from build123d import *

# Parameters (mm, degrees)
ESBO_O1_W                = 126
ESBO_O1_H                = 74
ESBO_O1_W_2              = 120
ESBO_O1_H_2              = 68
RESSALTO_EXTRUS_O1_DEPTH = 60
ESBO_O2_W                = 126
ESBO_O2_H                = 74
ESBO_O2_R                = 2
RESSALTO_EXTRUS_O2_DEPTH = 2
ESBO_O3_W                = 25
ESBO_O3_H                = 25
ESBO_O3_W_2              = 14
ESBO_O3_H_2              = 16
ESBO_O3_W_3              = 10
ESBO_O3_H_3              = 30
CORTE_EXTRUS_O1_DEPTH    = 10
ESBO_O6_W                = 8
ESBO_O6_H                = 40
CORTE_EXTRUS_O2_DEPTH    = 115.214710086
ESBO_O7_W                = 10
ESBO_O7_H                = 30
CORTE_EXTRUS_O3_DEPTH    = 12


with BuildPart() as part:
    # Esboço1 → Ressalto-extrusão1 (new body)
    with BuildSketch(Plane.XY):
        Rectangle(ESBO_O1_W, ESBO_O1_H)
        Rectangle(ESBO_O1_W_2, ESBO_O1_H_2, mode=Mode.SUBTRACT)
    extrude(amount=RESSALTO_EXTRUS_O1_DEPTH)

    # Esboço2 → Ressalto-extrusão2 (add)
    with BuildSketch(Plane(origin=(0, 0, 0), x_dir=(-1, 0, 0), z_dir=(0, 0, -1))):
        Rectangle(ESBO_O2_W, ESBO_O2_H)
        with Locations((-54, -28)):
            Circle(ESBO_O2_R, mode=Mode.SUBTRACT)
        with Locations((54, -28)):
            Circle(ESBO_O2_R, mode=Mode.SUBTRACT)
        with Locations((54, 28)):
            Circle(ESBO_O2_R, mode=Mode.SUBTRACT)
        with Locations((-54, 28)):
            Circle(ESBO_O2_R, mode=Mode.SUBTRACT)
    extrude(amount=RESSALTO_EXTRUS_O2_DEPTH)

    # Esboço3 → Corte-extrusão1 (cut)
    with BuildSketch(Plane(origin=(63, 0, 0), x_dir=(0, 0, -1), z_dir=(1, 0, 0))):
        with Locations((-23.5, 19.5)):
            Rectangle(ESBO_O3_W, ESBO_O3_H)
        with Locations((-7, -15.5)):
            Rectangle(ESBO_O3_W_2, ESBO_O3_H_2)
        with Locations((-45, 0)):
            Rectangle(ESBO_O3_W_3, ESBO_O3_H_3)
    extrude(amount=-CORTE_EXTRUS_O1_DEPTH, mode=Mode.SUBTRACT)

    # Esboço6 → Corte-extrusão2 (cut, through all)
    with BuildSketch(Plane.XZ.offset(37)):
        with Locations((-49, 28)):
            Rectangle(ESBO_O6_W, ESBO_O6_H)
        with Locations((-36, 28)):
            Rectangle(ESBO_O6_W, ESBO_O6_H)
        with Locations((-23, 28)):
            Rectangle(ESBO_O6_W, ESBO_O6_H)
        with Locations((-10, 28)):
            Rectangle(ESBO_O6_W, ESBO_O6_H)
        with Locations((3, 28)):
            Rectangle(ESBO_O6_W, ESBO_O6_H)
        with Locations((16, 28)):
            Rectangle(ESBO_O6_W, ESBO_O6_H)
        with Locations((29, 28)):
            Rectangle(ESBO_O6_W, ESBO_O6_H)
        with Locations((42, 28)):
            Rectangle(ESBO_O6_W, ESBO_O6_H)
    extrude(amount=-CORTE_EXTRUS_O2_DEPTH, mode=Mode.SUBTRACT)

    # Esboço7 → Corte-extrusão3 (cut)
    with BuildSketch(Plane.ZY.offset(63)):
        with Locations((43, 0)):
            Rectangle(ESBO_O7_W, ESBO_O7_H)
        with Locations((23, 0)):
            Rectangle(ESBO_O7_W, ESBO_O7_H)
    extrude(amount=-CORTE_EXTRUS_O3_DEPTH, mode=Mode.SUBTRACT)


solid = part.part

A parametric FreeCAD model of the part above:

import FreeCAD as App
import Part
import Sketcher

doc = App.newDocument("Part")
body = doc.addObject("PartDesign::Body", "Body")

sketch1 = body.newObject("Sketcher::SketchObject", "Sketch")
sketch1.AttachmentSupport = (doc.getObject("XY_Plane"), [""])
sketch1.MapMode = "FlatFace"
sketch1.addGeometry(Part.LineSegment(App.Vector(-63, 37, 0), App.Vector(-63, -37, 0)), False)
sketch1.addGeometry(Part.LineSegment(App.Vector(-63, -37, 0), App.Vector(63, -37, 0)), False)
sketch1.addGeometry(Part.LineSegment(App.Vector(63, -37, 0), App.Vector(63, 37, 0)), False)
sketch1.addGeometry(Part.LineSegment(App.Vector(63, 37, 0), App.Vector(-63, 37, 0)), False)
sketch1.addGeometry(Part.LineSegment(App.Vector(60, -34, 0), App.Vector(-60, -34, 0)), False)
sketch1.addGeometry(Part.LineSegment(App.Vector(-60, -34, 0), App.Vector(-60, 34, 0)), False)
sketch1.addGeometry(Part.LineSegment(App.Vector(-60, 34, 0), App.Vector(60, 34, 0)), False)
sketch1.addGeometry(Part.LineSegment(App.Vector(60, 34, 0), App.Vector(60, -34, 0)), False)
sketch1.addConstraint(Sketcher.Constraint("Coincident", 0, 2, 1, 1))
sketch1.addConstraint(Sketcher.Constraint("Coincident", 1, 2, 2, 1))
sketch1.addConstraint(Sketcher.Constraint("Coincident", 2, 2, 3, 1))
sketch1.addConstraint(Sketcher.Constraint("Coincident", 3, 2, 0, 1))
sketch1.addConstraint(Sketcher.Constraint("Coincident", 4, 2, 5, 1))
sketch1.addConstraint(Sketcher.Constraint("Coincident", 5, 2, 6, 1))
sketch1.addConstraint(Sketcher.Constraint("Coincident", 6, 2, 7, 1))
sketch1.addConstraint(Sketcher.Constraint("Coincident", 7, 2, 4, 1))
sketch1.addConstraint(Sketcher.Constraint("Vertical", 0))
sketch1.addConstraint(Sketcher.Constraint("Horizontal", 1))
sketch1.addConstraint(Sketcher.Constraint("Vertical", 2))
sketch1.addConstraint(Sketcher.Constraint("Horizontal", 3))
sketch1.addConstraint(Sketcher.Constraint("Horizontal", 4))
sketch1.addConstraint(Sketcher.Constraint("Vertical", 5))
sketch1.addConstraint(Sketcher.Constraint("Horizontal", 6))
sketch1.addConstraint(Sketcher.Constraint("Vertical", 7))
sketch1.addConstraint(Sketcher.Constraint("Symmetric", 0, 2, 2, 2, -1, 1))
sketch1.addConstraint(Sketcher.Constraint("Symmetric", 4, 2, 6, 2, -1, 1))
sketch1.addConstraint(Sketcher.Constraint("DistanceX", 1, 1, 1, 2, 126.0))
sketch1.addConstraint(Sketcher.Constraint("DistanceX", 4, 2, 4, 1, 120.0))
sketch1.addConstraint(Sketcher.Constraint("DistanceY", 0, 2, 0, 1, 74.0))
sketch1.addConstraint(Sketcher.Constraint("DistanceY", 5, 1, 5, 2, 68.0))
pad1 = body.newObject("PartDesign::Pad", "Pad")
pad1.Profile = sketch1
pad1.Length = 60

sketch2 = body.newObject("Sketcher::SketchObject", "Sketch001")
sketch2.AttachmentSupport = (doc.getObject("XY_Plane"), [""])
sketch2.MapMode = "FlatFace"
sketch2.addGeometry(Part.LineSegment(App.Vector(63, 37, 0), App.Vector(63, -37, 0)), False)
sketch2.addGeometry(Part.LineSegment(App.Vector(63, -37, 0), App.Vector(-63, -37, 0)), False)
sketch2.addGeometry(Part.LineSegment(App.Vector(-63, -37, 0), App.Vector(-63, 37, 0)), False)
sketch2.addGeometry(Part.LineSegment(App.Vector(-63, 37, 0), App.Vector(63, 37, 0)), False)
sketch2.addGeometry(Part.Circle(App.Vector(54, -28, 0), App.Vector(0, 0, 1), 2), False)
sketch2.addGeometry(Part.Circle(App.Vector(-54, -28, 0), App.Vector(0, 0, 1), 2), False)
sketch2.addGeometry(Part.Circle(App.Vector(54, 28, 0), App.Vector(0, 0, 1), 2), False)
sketch2.addGeometry(Part.Circle(App.Vector(-54, 28, 0), App.Vector(0, 0, 1), 2), False)
sketch2.addConstraint(Sketcher.Constraint("Coincident", 0, 2, 1, 1))
sketch2.addConstraint(Sketcher.Constraint("Coincident", 1, 2, 2, 1))
sketch2.addConstraint(Sketcher.Constraint("Coincident", 2, 2, 3, 1))
sketch2.addConstraint(Sketcher.Constraint("Coincident", 3, 2, 0, 1))
sketch2.addConstraint(Sketcher.Constraint("Vertical", 0))
sketch2.addConstraint(Sketcher.Constraint("Horizontal", 1))
sketch2.addConstraint(Sketcher.Constraint("Vertical", 2))
sketch2.addConstraint(Sketcher.Constraint("Horizontal", 3))
sketch2.addConstraint(Sketcher.Constraint("Equal", 4, 5))
sketch2.addConstraint(Sketcher.Constraint("Equal", 5, 6))
sketch2.addConstraint(Sketcher.Constraint("Equal", 6, 7))
sketch2.addConstraint(Sketcher.Constraint("Symmetric", 5, 3, 6, 3, -1, 1))
sketch2.addConstraint(Sketcher.Constraint("Symmetric", 4, 3, 7, 3, -1, 1))
sketch2.addConstraint(Sketcher.Constraint("Symmetric", 0, 2, 2, 2, -1, 1))
sketch2.addConstraint(Sketcher.Constraint("Symmetric", 4, 3, 5, 3, -2))
sketch2.addConstraint(Sketcher.Constraint("Diameter", 4, 4.0))
sketch2.addConstraint(Sketcher.Constraint("DistanceX", 1, 2, 1, 1, 126.0))
sketch2.addConstraint(Sketcher.Constraint("DistanceY", 0, 2, 0, 1, 74.0))
sketch2.addConstraint(Sketcher.Constraint("DistanceX", -1, 1, 4, 3, 54.0))
sketch2.addConstraint(Sketcher.Constraint("DistanceY", 4, 3, -1, 1, 28.0))
pad2 = body.newObject("PartDesign::Pad", "Pad001")
pad2.Profile = sketch2
pad2.Length = 2
pad2.Reversed = True

sketch3 = body.newObject("Sketcher::SketchObject", "Sketch002")
sketch3.AttachmentSupport = (doc.getObject("YZ_Plane"), [""])
sketch3.MapMode = "FlatFace"
sketch3.AttachmentOffset = App.Placement(App.Vector(0, 0, 63), App.Rotation())
sketch3.addGeometry(Part.LineSegment(App.Vector(32, 36, 0), App.Vector(7, 36, 0)), False)
sketch3.addGeometry(Part.LineSegment(App.Vector(7, 36, 0), App.Vector(7, 11, 0)), False)
sketch3.addGeometry(Part.LineSegment(App.Vector(7, 11, 0), App.Vector(32, 11, 0)), False)
sketch3.addGeometry(Part.LineSegment(App.Vector(32, 11, 0), App.Vector(32, 36, 0)), False)
sketch3.addGeometry(Part.LineSegment(App.Vector(-7.5, 14, 0), App.Vector(-23.5, 14, 0)), False)
sketch3.addGeometry(Part.LineSegment(App.Vector(-23.5, 14, 0), App.Vector(-23.5, 0, 0)), False)
sketch3.addGeometry(Part.LineSegment(App.Vector(-23.5, 0, 0), App.Vector(-7.5, 0, 0)), False)
sketch3.addGeometry(Part.LineSegment(App.Vector(-7.5, 0, 0), App.Vector(-7.5, 14, 0)), False)
sketch3.addGeometry(Part.LineSegment(App.Vector(15, 50, 0), App.Vector(-15, 50, 0)), False)
sketch3.addGeometry(Part.LineSegment(App.Vector(-15, 50, 0), App.Vector(-15, 40, 0)), False)
sketch3.addGeometry(Part.LineSegment(App.Vector(-15, 40, 0), App.Vector(15, 40, 0)), False)
sketch3.addGeometry(Part.LineSegment(App.Vector(15, 40, 0), App.Vector(15, 50, 0)), False)
sketch3.addConstraint(Sketcher.Constraint("Coincident", 0, 2, 1, 1))
sketch3.addConstraint(Sketcher.Constraint("Coincident", 1, 2, 2, 1))
sketch3.addConstraint(Sketcher.Constraint("Coincident", 2, 2, 3, 1))
sketch3.addConstraint(Sketcher.Constraint("Coincident", 3, 2, 0, 1))
sketch3.addConstraint(Sketcher.Constraint("Coincident", 4, 2, 5, 1))
sketch3.addConstraint(Sketcher.Constraint("Coincident", 5, 2, 6, 1))
sketch3.addConstraint(Sketcher.Constraint("Coincident", 6, 2, 7, 1))
sketch3.addConstraint(Sketcher.Constraint("Coincident", 7, 2, 4, 1))
sketch3.addConstraint(Sketcher.Constraint("Coincident", 8, 2, 9, 1))
sketch3.addConstraint(Sketcher.Constraint("Coincident", 9, 2, 10, 1))
sketch3.addConstraint(Sketcher.Constraint("Coincident", 10, 2, 11, 1))
sketch3.addConstraint(Sketcher.Constraint("Coincident", 11, 2, 8, 1))
sketch3.addConstraint(Sketcher.Constraint("Horizontal", 0))
sketch3.addConstraint(Sketcher.Constraint("Vertical", 1))
sketch3.addConstraint(Sketcher.Constraint("Horizontal", 2))
sketch3.addConstraint(Sketcher.Constraint("Vertical", 3))
sketch3.addConstraint(Sketcher.Constraint("Horizontal", 4))
sketch3.addConstraint(Sketcher.Constraint("Vertical", 5))
sketch3.addConstraint(Sketcher.Constraint("Horizontal", 6))
sketch3.addConstraint(Sketcher.Constraint("Vertical", 7))
sketch3.addConstraint(Sketcher.Constraint("Horizontal", 8))
sketch3.addConstraint(Sketcher.Constraint("Vertical", 9))
sketch3.addConstraint(Sketcher.Constraint("Horizontal", 10))
sketch3.addConstraint(Sketcher.Constraint("Vertical", 11))
sketch3.addConstraint(Sketcher.Constraint("PointOnObject", 5, 2, -1))
sketch3.addConstraint(Sketcher.Constraint("Equal", 2, 1))
sketch3.addConstraint(Sketcher.Constraint("DistanceX", 0, 2, 0, 1, 25.0))
sketch3.addConstraint(Sketcher.Constraint("DistanceX", 4, 2, 4, 1, 16.0))
sketch3.addConstraint(Sketcher.Constraint("DistanceX", 8, 2, 8, 1, 30.0))
sketch3.addConstraint(Sketcher.Constraint("DistanceY", 5, 2, 5, 1, 14.0))
sketch3.addConstraint(Sketcher.Constraint("DistanceY", 9, 2, 9, 1, 10.0))
sketch3.addConstraint(Sketcher.Constraint("DistanceX", -1, 1, 0, 2, 7.0))
sketch3.addConstraint(Sketcher.Constraint("DistanceY", -1, 1, 0, 2, 36.0))
sketch3.addConstraint(Sketcher.Constraint("DistanceX", 8, 2, -1, 1, 15.0))
sketch3.addConstraint(Sketcher.Constraint("DistanceY", -1, 1, 8, 2, 50.0))
sketch3.addConstraint(Sketcher.Constraint("DistanceX", 4, 2, -1, 1, 23.5))
pocket1 = body.newObject("PartDesign::Pocket", "Pocket")
pocket1.Profile = sketch3
pocket1.Length = 10

sketch4 = body.newObject("Sketcher::SketchObject", "Sketch003")
sketch4.AttachmentSupport = (doc.getObject("XZ_Plane"), [""])
sketch4.MapMode = "FlatFace"
sketch4.AttachmentOffset = App.Placement(App.Vector(0, 0, 37), App.Rotation())
sketch4.addGeometry(Part.LineSegment(App.Vector(-53, 48, 0), App.Vector(-53, 8, 0)), False)
sketch4.addGeometry(Part.LineSegment(App.Vector(-53, 8, 0), App.Vector(-45, 8, 0)), False)
sketch4.addGeometry(Part.LineSegment(App.Vector(-45, 8, 0), App.Vector(-45, 48, 0)), False)
sketch4.addGeometry(Part.LineSegment(App.Vector(-45, 48, 0), App.Vector(-53, 48, 0)), False)
sketch4.addGeometry(Part.LineSegment(App.Vector(-40, 48, 0), App.Vector(-40, 8, 0)), False)
sketch4.addGeometry(Part.LineSegment(App.Vector(-40, 8, 0), App.Vector(-32, 8, 0)), False)
sketch4.addGeometry(Part.LineSegment(App.Vector(-32, 8, 0), App.Vector(-32, 48, 0)), False)
sketch4.addGeometry(Part.LineSegment(App.Vector(-32, 48, 0), App.Vector(-40, 48, 0)), False)
sketch4.addGeometry(Part.LineSegment(App.Vector(-27, 48, 0), App.Vector(-27, 8, 0)), False)
sketch4.addGeometry(Part.LineSegment(App.Vector(-27, 8, 0), App.Vector(-19, 8, 0)), False)
sketch4.addGeometry(Part.LineSegment(App.Vector(-19, 8, 0), App.Vector(-19, 48, 0)), False)
sketch4.addGeometry(Part.LineSegment(App.Vector(-19, 48, 0), App.Vector(-27, 48, 0)), False)
sketch4.addGeometry(Part.LineSegment(App.Vector(-14, 48, 0), App.Vector(-14, 8, 0)), False)
sketch4.addGeometry(Part.LineSegment(App.Vector(-14, 8, 0), App.Vector(-6, 8, 0)), False)
sketch4.addGeometry(Part.LineSegment(App.Vector(-6, 8, 0), App.Vector(-6, 48, 0)), False)
sketch4.addGeometry(Part.LineSegment(App.Vector(-6, 48, 0), App.Vector(-14, 48, 0)), False)
sketch4.addGeometry(Part.LineSegment(App.Vector(-1, 48, 0), App.Vector(-1, 8, 0)), False)
sketch4.addGeometry(Part.LineSegment(App.Vector(-1, 8, 0), App.Vector(7, 8, 0)), False)
sketch4.addGeometry(Part.LineSegment(App.Vector(7, 8, 0), App.Vector(7, 48, 0)), False)
sketch4.addGeometry(Part.LineSegment(App.Vector(7, 48, 0), App.Vector(-1, 48, 0)), False)
sketch4.addGeometry(Part.LineSegment(App.Vector(12, 48, 0), App.Vector(12, 8, 0)), False)
sketch4.addGeometry(Part.LineSegment(App.Vector(12, 8, 0), App.Vector(20, 8, 0)), False)
sketch4.addGeometry(Part.LineSegment(App.Vector(20, 8, 0), App.Vector(20, 48, 0)), False)
sketch4.addGeometry(Part.LineSegment(App.Vector(20, 48, 0), App.Vector(12, 48, 0)), False)
sketch4.addGeometry(Part.LineSegment(App.Vector(25, 48, 0), App.Vector(25, 8, 0)), False)
sketch4.addGeometry(Part.LineSegment(App.Vector(25, 8, 0), App.Vector(33, 8, 0)), False)
sketch4.addGeometry(Part.LineSegment(App.Vector(33, 8, 0), App.Vector(33, 48, 0)), False)
sketch4.addGeometry(Part.LineSegment(App.Vector(33, 48, 0), App.Vector(25, 48, 0)), False)
sketch4.addGeometry(Part.LineSegment(App.Vector(38, 48, 0), App.Vector(38, 8, 0)), False)
sketch4.addGeometry(Part.LineSegment(App.Vector(38, 8, 0), App.Vector(46, 8, 0)), False)
sketch4.addGeometry(Part.LineSegment(App.Vector(46, 8, 0), App.Vector(46, 48, 0)), False)
sketch4.addGeometry(Part.LineSegment(App.Vector(46, 48, 0), App.Vector(38, 48, 0)), False)
sketch4.addConstraint(Sketcher.Constraint("Coincident", 0, 2, 1, 1))
sketch4.addConstraint(Sketcher.Constraint("Coincident", 1, 2, 2, 1))
sketch4.addConstraint(Sketcher.Constraint("Coincident", 2, 2, 3, 1))
sketch4.addConstraint(Sketcher.Constraint("Coincident", 3, 2, 0, 1))
sketch4.addConstraint(Sketcher.Constraint("Coincident", 4, 2, 5, 1))
sketch4.addConstraint(Sketcher.Constraint("Coincident", 5, 2, 6, 1))
sketch4.addConstraint(Sketcher.Constraint("Coincident", 6, 2, 7, 1))
sketch4.addConstraint(Sketcher.Constraint("Coincident", 7, 2, 4, 1))
sketch4.addConstraint(Sketcher.Constraint("Coincident", 8, 2, 9, 1))
sketch4.addConstraint(Sketcher.Constraint("Coincident", 9, 2, 10, 1))
sketch4.addConstraint(Sketcher.Constraint("Coincident", 10, 2, 11, 1))
sketch4.addConstraint(Sketcher.Constraint("Coincident", 11, 2, 8, 1))
sketch4.addConstraint(Sketcher.Constraint("Coincident", 12, 2, 13, 1))
sketch4.addConstraint(Sketcher.Constraint("Coincident", 13, 2, 14, 1))
sketch4.addConstraint(Sketcher.Constraint("Coincident", 14, 2, 15, 1))
sketch4.addConstraint(Sketcher.Constraint("Coincident", 15, 2, 12, 1))
sketch4.addConstraint(Sketcher.Constraint("Coincident", 16, 2, 17, 1))
sketch4.addConstraint(Sketcher.Constraint("Coincident", 17, 2, 18, 1))
sketch4.addConstraint(Sketcher.Constraint("Coincident", 18, 2, 19, 1))
sketch4.addConstraint(Sketcher.Constraint("Coincident", 19, 2, 16, 1))
sketch4.addConstraint(Sketcher.Constraint("Coincident", 20, 2, 21, 1))
sketch4.addConstraint(Sketcher.Constraint("Coincident", 21, 2, 22, 1))
sketch4.addConstraint(Sketcher.Constraint("Coincident", 22, 2, 23, 1))
sketch4.addConstraint(Sketcher.Constraint("Coincident", 23, 2, 20, 1))
sketch4.addConstraint(Sketcher.Constraint("Coincident", 24, 2, 25, 1))
sketch4.addConstraint(Sketcher.Constraint("Coincident", 25, 2, 26, 1))
sketch4.addConstraint(Sketcher.Constraint("Coincident", 26, 2, 27, 1))
sketch4.addConstraint(Sketcher.Constraint("Coincident", 27, 2, 24, 1))
sketch4.addConstraint(Sketcher.Constraint("Coincident", 28, 2, 29, 1))
sketch4.addConstraint(Sketcher.Constraint("Coincident", 29, 2, 30, 1))
sketch4.addConstraint(Sketcher.Constraint("Coincident", 30, 2, 31, 1))
sketch4.addConstraint(Sketcher.Constraint("Coincident", 31, 2, 28, 1))
sketch4.addConstraint(Sketcher.Constraint("Vertical", 0))
sketch4.addConstraint(Sketcher.Constraint("Horizontal", 1))
sketch4.addConstraint(Sketcher.Constraint("Vertical", 2))
sketch4.addConstraint(Sketcher.Constraint("Horizontal", 3))
sketch4.addConstraint(Sketcher.Constraint("Vertical", 4))
sketch4.addConstraint(Sketcher.Constraint("Horizontal", 5))
sketch4.addConstraint(Sketcher.Constraint("Vertical", 6))
sketch4.addConstraint(Sketcher.Constraint("Horizontal", 7))
sketch4.addConstraint(Sketcher.Constraint("Vertical", 8))
sketch4.addConstraint(Sketcher.Constraint("Horizontal", 9))
sketch4.addConstraint(Sketcher.Constraint("Vertical", 10))
sketch4.addConstraint(Sketcher.Constraint("Horizontal", 11))
sketch4.addConstraint(Sketcher.Constraint("Vertical", 12))
sketch4.addConstraint(Sketcher.Constraint("Horizontal", 13))
sketch4.addConstraint(Sketcher.Constraint("Vertical", 14))
sketch4.addConstraint(Sketcher.Constraint("Horizontal", 15))
sketch4.addConstraint(Sketcher.Constraint("Vertical", 16))
sketch4.addConstraint(Sketcher.Constraint("Horizontal", 17))
sketch4.addConstraint(Sketcher.Constraint("Vertical", 18))
sketch4.addConstraint(Sketcher.Constraint("Horizontal", 19))
sketch4.addConstraint(Sketcher.Constraint("Vertical", 20))
sketch4.addConstraint(Sketcher.Constraint("Horizontal", 21))
sketch4.addConstraint(Sketcher.Constraint("Vertical", 22))
sketch4.addConstraint(Sketcher.Constraint("Horizontal", 23))
sketch4.addConstraint(Sketcher.Constraint("Vertical", 24))
sketch4.addConstraint(Sketcher.Constraint("Horizontal", 25))
sketch4.addConstraint(Sketcher.Constraint("Vertical", 26))
sketch4.addConstraint(Sketcher.Constraint("Horizontal", 27))
sketch4.addConstraint(Sketcher.Constraint("Vertical", 28))
sketch4.addConstraint(Sketcher.Constraint("Horizontal", 29))
sketch4.addConstraint(Sketcher.Constraint("Vertical", 30))
sketch4.addConstraint(Sketcher.Constraint("Horizontal", 31))
sketch4.addConstraint(Sketcher.Constraint("Horizontal", 1, 2, 4, 2))
sketch4.addConstraint(Sketcher.Constraint("Horizontal", 3, 2, 6, 2))
sketch4.addConstraint(Sketcher.Constraint("Horizontal", 5, 2, 8, 2))
sketch4.addConstraint(Sketcher.Constraint("Horizontal", 7, 2, 10, 2))
sketch4.addConstraint(Sketcher.Constraint("Horizontal", 9, 2, 12, 2))
sketch4.addConstraint(Sketcher.Constraint("Horizontal", 11, 2, 14, 2))
sketch4.addConstraint(Sketcher.Constraint("Horizontal", 13, 2, 16, 2))
sketch4.addConstraint(Sketcher.Constraint("Horizontal", 15, 2, 18, 2))
sketch4.addConstraint(Sketcher.Constraint("Horizontal", 17, 2, 20, 2))
sketch4.addConstraint(Sketcher.Constraint("Horizontal", 19, 2, 22, 2))
sketch4.addConstraint(Sketcher.Constraint("Horizontal", 21, 2, 24, 2))
sketch4.addConstraint(Sketcher.Constraint("Horizontal", 23, 2, 26, 2))
sketch4.addConstraint(Sketcher.Constraint("Horizontal", 25, 2, 28, 2))
sketch4.addConstraint(Sketcher.Constraint("Horizontal", 27, 2, 30, 2))
sketch4.addConstraint(Sketcher.Constraint("Equal", 3, 5))
sketch4.addConstraint(Sketcher.Constraint("Equal", 7, 9))
sketch4.addConstraint(Sketcher.Constraint("Equal", 11, 13))
sketch4.addConstraint(Sketcher.Constraint("Equal", 15, 17))
sketch4.addConstraint(Sketcher.Constraint("Equal", 19, 21))
sketch4.addConstraint(Sketcher.Constraint("Equal", 23, 25))
sketch4.addConstraint(Sketcher.Constraint("Equal", 27, 29))
sketch4.addConstraint(Sketcher.Constraint("DistanceX", 1, 1, 1, 2, 8.0))
sketch4.addConstraint(Sketcher.Constraint("DistanceY", 0, 2, 0, 1, 40.0))
sketch4.addConstraint(Sketcher.Constraint("DistanceX", 0, 2, -1, 1, 53.0))
sketch4.addConstraint(Sketcher.Constraint("DistanceY", -1, 1, 0, 2, 8.0))
sketch4.addConstraint(Sketcher.Constraint("DistanceX", 4, 2, -1, 1, 40.0))
sketch4.addConstraint(Sketcher.Constraint("DistanceX", 8, 2, -1, 1, 27.0))
sketch4.addConstraint(Sketcher.Constraint("DistanceX", 12, 2, -1, 1, 14.0))
sketch4.addConstraint(Sketcher.Constraint("DistanceX", 16, 2, -1, 1, 1.0))
sketch4.addConstraint(Sketcher.Constraint("DistanceX", -1, 1, 20, 2, 12.0))
sketch4.addConstraint(Sketcher.Constraint("DistanceX", -1, 1, 24, 2, 25.0))
sketch4.addConstraint(Sketcher.Constraint("DistanceX", -1, 1, 28, 2, 38.0))
pocket2 = body.newObject("PartDesign::Pocket", "Pocket001")
pocket2.Profile = sketch4
pocket2.Type = "ThroughAll"

sketch5 = body.newObject("Sketcher::SketchObject", "Sketch004")
sketch5.AttachmentSupport = (doc.getObject("YZ_Plane"), [""])
sketch5.MapMode = "FlatFace"
sketch5.AttachmentOffset = App.Placement(App.Vector(0, 0, -63), App.Rotation())
sketch5.addGeometry(Part.LineSegment(App.Vector(15, 38, 0), App.Vector(-15, 38, 0)), False)
sketch5.addGeometry(Part.LineSegment(App.Vector(-15, 38, 0), App.Vector(-15, 48, 0)), False)
sketch5.addGeometry(Part.LineSegment(App.Vector(-15, 48, 0), App.Vector(15, 48, 0)), False)
sketch5.addGeometry(Part.LineSegment(App.Vector(15, 48, 0), App.Vector(15, 38, 0)), False)
sketch5.addGeometry(Part.LineSegment(App.Vector(15, 18, 0), App.Vector(-15, 18, 0)), False)
sketch5.addGeometry(Part.LineSegment(App.Vector(-15, 18, 0), App.Vector(-15, 28, 0)), False)
sketch5.addGeometry(Part.LineSegment(App.Vector(-15, 28, 0), App.Vector(15, 28, 0)), False)
sketch5.addGeometry(Part.LineSegment(App.Vector(15, 28, 0), App.Vector(15, 18, 0)), False)
sketch5.addConstraint(Sketcher.Constraint("Coincident", 0, 2, 1, 1))
sketch5.addConstraint(Sketcher.Constraint("Coincident", 1, 2, 2, 1))
sketch5.addConstraint(Sketcher.Constraint("Coincident", 2, 2, 3, 1))
sketch5.addConstraint(Sketcher.Constraint("Coincident", 3, 2, 0, 1))
sketch5.addConstraint(Sketcher.Constraint("Coincident", 4, 2, 5, 1))
sketch5.addConstraint(Sketcher.Constraint("Coincident", 5, 2, 6, 1))
sketch5.addConstraint(Sketcher.Constraint("Coincident", 6, 2, 7, 1))
sketch5.addConstraint(Sketcher.Constraint("Coincident", 7, 2, 4, 1))
sketch5.addConstraint(Sketcher.Constraint("Horizontal", 0))
sketch5.addConstraint(Sketcher.Constraint("Vertical", 1))
sketch5.addConstraint(Sketcher.Constraint("Horizontal", 2))
sketch5.addConstraint(Sketcher.Constraint("Vertical", 3))
sketch5.addConstraint(Sketcher.Constraint("Horizontal", 4))
sketch5.addConstraint(Sketcher.Constraint("Vertical", 5))
sketch5.addConstraint(Sketcher.Constraint("Horizontal", 6))
sketch5.addConstraint(Sketcher.Constraint("Vertical", 7))
sketch5.addConstraint(Sketcher.Constraint("Vertical", 1, 2, 4, 2))
sketch5.addConstraint(Sketcher.Constraint("Vertical", 3, 2, 6, 2))
sketch5.addConstraint(Sketcher.Constraint("Equal", 3, 5))
sketch5.addConstraint(Sketcher.Constraint("DistanceX", 0, 2, 0, 1, 30.0))
sketch5.addConstraint(Sketcher.Constraint("DistanceY", 1, 1, 1, 2, 10.0))
sketch5.addConstraint(Sketcher.Constraint("DistanceX", 0, 2, -1, 1, 15.0))
sketch5.addConstraint(Sketcher.Constraint("DistanceY", -1, 1, 0, 2, 38.0))
sketch5.addConstraint(Sketcher.Constraint("DistanceY", -1, 1, 4, 2, 18.0))
pocket3 = body.newObject("PartDesign::Pocket", "Pocket002")
pocket3.Profile = sketch5
pocket3.Length = 12
pocket3.Reversed = True

doc.recompute()
